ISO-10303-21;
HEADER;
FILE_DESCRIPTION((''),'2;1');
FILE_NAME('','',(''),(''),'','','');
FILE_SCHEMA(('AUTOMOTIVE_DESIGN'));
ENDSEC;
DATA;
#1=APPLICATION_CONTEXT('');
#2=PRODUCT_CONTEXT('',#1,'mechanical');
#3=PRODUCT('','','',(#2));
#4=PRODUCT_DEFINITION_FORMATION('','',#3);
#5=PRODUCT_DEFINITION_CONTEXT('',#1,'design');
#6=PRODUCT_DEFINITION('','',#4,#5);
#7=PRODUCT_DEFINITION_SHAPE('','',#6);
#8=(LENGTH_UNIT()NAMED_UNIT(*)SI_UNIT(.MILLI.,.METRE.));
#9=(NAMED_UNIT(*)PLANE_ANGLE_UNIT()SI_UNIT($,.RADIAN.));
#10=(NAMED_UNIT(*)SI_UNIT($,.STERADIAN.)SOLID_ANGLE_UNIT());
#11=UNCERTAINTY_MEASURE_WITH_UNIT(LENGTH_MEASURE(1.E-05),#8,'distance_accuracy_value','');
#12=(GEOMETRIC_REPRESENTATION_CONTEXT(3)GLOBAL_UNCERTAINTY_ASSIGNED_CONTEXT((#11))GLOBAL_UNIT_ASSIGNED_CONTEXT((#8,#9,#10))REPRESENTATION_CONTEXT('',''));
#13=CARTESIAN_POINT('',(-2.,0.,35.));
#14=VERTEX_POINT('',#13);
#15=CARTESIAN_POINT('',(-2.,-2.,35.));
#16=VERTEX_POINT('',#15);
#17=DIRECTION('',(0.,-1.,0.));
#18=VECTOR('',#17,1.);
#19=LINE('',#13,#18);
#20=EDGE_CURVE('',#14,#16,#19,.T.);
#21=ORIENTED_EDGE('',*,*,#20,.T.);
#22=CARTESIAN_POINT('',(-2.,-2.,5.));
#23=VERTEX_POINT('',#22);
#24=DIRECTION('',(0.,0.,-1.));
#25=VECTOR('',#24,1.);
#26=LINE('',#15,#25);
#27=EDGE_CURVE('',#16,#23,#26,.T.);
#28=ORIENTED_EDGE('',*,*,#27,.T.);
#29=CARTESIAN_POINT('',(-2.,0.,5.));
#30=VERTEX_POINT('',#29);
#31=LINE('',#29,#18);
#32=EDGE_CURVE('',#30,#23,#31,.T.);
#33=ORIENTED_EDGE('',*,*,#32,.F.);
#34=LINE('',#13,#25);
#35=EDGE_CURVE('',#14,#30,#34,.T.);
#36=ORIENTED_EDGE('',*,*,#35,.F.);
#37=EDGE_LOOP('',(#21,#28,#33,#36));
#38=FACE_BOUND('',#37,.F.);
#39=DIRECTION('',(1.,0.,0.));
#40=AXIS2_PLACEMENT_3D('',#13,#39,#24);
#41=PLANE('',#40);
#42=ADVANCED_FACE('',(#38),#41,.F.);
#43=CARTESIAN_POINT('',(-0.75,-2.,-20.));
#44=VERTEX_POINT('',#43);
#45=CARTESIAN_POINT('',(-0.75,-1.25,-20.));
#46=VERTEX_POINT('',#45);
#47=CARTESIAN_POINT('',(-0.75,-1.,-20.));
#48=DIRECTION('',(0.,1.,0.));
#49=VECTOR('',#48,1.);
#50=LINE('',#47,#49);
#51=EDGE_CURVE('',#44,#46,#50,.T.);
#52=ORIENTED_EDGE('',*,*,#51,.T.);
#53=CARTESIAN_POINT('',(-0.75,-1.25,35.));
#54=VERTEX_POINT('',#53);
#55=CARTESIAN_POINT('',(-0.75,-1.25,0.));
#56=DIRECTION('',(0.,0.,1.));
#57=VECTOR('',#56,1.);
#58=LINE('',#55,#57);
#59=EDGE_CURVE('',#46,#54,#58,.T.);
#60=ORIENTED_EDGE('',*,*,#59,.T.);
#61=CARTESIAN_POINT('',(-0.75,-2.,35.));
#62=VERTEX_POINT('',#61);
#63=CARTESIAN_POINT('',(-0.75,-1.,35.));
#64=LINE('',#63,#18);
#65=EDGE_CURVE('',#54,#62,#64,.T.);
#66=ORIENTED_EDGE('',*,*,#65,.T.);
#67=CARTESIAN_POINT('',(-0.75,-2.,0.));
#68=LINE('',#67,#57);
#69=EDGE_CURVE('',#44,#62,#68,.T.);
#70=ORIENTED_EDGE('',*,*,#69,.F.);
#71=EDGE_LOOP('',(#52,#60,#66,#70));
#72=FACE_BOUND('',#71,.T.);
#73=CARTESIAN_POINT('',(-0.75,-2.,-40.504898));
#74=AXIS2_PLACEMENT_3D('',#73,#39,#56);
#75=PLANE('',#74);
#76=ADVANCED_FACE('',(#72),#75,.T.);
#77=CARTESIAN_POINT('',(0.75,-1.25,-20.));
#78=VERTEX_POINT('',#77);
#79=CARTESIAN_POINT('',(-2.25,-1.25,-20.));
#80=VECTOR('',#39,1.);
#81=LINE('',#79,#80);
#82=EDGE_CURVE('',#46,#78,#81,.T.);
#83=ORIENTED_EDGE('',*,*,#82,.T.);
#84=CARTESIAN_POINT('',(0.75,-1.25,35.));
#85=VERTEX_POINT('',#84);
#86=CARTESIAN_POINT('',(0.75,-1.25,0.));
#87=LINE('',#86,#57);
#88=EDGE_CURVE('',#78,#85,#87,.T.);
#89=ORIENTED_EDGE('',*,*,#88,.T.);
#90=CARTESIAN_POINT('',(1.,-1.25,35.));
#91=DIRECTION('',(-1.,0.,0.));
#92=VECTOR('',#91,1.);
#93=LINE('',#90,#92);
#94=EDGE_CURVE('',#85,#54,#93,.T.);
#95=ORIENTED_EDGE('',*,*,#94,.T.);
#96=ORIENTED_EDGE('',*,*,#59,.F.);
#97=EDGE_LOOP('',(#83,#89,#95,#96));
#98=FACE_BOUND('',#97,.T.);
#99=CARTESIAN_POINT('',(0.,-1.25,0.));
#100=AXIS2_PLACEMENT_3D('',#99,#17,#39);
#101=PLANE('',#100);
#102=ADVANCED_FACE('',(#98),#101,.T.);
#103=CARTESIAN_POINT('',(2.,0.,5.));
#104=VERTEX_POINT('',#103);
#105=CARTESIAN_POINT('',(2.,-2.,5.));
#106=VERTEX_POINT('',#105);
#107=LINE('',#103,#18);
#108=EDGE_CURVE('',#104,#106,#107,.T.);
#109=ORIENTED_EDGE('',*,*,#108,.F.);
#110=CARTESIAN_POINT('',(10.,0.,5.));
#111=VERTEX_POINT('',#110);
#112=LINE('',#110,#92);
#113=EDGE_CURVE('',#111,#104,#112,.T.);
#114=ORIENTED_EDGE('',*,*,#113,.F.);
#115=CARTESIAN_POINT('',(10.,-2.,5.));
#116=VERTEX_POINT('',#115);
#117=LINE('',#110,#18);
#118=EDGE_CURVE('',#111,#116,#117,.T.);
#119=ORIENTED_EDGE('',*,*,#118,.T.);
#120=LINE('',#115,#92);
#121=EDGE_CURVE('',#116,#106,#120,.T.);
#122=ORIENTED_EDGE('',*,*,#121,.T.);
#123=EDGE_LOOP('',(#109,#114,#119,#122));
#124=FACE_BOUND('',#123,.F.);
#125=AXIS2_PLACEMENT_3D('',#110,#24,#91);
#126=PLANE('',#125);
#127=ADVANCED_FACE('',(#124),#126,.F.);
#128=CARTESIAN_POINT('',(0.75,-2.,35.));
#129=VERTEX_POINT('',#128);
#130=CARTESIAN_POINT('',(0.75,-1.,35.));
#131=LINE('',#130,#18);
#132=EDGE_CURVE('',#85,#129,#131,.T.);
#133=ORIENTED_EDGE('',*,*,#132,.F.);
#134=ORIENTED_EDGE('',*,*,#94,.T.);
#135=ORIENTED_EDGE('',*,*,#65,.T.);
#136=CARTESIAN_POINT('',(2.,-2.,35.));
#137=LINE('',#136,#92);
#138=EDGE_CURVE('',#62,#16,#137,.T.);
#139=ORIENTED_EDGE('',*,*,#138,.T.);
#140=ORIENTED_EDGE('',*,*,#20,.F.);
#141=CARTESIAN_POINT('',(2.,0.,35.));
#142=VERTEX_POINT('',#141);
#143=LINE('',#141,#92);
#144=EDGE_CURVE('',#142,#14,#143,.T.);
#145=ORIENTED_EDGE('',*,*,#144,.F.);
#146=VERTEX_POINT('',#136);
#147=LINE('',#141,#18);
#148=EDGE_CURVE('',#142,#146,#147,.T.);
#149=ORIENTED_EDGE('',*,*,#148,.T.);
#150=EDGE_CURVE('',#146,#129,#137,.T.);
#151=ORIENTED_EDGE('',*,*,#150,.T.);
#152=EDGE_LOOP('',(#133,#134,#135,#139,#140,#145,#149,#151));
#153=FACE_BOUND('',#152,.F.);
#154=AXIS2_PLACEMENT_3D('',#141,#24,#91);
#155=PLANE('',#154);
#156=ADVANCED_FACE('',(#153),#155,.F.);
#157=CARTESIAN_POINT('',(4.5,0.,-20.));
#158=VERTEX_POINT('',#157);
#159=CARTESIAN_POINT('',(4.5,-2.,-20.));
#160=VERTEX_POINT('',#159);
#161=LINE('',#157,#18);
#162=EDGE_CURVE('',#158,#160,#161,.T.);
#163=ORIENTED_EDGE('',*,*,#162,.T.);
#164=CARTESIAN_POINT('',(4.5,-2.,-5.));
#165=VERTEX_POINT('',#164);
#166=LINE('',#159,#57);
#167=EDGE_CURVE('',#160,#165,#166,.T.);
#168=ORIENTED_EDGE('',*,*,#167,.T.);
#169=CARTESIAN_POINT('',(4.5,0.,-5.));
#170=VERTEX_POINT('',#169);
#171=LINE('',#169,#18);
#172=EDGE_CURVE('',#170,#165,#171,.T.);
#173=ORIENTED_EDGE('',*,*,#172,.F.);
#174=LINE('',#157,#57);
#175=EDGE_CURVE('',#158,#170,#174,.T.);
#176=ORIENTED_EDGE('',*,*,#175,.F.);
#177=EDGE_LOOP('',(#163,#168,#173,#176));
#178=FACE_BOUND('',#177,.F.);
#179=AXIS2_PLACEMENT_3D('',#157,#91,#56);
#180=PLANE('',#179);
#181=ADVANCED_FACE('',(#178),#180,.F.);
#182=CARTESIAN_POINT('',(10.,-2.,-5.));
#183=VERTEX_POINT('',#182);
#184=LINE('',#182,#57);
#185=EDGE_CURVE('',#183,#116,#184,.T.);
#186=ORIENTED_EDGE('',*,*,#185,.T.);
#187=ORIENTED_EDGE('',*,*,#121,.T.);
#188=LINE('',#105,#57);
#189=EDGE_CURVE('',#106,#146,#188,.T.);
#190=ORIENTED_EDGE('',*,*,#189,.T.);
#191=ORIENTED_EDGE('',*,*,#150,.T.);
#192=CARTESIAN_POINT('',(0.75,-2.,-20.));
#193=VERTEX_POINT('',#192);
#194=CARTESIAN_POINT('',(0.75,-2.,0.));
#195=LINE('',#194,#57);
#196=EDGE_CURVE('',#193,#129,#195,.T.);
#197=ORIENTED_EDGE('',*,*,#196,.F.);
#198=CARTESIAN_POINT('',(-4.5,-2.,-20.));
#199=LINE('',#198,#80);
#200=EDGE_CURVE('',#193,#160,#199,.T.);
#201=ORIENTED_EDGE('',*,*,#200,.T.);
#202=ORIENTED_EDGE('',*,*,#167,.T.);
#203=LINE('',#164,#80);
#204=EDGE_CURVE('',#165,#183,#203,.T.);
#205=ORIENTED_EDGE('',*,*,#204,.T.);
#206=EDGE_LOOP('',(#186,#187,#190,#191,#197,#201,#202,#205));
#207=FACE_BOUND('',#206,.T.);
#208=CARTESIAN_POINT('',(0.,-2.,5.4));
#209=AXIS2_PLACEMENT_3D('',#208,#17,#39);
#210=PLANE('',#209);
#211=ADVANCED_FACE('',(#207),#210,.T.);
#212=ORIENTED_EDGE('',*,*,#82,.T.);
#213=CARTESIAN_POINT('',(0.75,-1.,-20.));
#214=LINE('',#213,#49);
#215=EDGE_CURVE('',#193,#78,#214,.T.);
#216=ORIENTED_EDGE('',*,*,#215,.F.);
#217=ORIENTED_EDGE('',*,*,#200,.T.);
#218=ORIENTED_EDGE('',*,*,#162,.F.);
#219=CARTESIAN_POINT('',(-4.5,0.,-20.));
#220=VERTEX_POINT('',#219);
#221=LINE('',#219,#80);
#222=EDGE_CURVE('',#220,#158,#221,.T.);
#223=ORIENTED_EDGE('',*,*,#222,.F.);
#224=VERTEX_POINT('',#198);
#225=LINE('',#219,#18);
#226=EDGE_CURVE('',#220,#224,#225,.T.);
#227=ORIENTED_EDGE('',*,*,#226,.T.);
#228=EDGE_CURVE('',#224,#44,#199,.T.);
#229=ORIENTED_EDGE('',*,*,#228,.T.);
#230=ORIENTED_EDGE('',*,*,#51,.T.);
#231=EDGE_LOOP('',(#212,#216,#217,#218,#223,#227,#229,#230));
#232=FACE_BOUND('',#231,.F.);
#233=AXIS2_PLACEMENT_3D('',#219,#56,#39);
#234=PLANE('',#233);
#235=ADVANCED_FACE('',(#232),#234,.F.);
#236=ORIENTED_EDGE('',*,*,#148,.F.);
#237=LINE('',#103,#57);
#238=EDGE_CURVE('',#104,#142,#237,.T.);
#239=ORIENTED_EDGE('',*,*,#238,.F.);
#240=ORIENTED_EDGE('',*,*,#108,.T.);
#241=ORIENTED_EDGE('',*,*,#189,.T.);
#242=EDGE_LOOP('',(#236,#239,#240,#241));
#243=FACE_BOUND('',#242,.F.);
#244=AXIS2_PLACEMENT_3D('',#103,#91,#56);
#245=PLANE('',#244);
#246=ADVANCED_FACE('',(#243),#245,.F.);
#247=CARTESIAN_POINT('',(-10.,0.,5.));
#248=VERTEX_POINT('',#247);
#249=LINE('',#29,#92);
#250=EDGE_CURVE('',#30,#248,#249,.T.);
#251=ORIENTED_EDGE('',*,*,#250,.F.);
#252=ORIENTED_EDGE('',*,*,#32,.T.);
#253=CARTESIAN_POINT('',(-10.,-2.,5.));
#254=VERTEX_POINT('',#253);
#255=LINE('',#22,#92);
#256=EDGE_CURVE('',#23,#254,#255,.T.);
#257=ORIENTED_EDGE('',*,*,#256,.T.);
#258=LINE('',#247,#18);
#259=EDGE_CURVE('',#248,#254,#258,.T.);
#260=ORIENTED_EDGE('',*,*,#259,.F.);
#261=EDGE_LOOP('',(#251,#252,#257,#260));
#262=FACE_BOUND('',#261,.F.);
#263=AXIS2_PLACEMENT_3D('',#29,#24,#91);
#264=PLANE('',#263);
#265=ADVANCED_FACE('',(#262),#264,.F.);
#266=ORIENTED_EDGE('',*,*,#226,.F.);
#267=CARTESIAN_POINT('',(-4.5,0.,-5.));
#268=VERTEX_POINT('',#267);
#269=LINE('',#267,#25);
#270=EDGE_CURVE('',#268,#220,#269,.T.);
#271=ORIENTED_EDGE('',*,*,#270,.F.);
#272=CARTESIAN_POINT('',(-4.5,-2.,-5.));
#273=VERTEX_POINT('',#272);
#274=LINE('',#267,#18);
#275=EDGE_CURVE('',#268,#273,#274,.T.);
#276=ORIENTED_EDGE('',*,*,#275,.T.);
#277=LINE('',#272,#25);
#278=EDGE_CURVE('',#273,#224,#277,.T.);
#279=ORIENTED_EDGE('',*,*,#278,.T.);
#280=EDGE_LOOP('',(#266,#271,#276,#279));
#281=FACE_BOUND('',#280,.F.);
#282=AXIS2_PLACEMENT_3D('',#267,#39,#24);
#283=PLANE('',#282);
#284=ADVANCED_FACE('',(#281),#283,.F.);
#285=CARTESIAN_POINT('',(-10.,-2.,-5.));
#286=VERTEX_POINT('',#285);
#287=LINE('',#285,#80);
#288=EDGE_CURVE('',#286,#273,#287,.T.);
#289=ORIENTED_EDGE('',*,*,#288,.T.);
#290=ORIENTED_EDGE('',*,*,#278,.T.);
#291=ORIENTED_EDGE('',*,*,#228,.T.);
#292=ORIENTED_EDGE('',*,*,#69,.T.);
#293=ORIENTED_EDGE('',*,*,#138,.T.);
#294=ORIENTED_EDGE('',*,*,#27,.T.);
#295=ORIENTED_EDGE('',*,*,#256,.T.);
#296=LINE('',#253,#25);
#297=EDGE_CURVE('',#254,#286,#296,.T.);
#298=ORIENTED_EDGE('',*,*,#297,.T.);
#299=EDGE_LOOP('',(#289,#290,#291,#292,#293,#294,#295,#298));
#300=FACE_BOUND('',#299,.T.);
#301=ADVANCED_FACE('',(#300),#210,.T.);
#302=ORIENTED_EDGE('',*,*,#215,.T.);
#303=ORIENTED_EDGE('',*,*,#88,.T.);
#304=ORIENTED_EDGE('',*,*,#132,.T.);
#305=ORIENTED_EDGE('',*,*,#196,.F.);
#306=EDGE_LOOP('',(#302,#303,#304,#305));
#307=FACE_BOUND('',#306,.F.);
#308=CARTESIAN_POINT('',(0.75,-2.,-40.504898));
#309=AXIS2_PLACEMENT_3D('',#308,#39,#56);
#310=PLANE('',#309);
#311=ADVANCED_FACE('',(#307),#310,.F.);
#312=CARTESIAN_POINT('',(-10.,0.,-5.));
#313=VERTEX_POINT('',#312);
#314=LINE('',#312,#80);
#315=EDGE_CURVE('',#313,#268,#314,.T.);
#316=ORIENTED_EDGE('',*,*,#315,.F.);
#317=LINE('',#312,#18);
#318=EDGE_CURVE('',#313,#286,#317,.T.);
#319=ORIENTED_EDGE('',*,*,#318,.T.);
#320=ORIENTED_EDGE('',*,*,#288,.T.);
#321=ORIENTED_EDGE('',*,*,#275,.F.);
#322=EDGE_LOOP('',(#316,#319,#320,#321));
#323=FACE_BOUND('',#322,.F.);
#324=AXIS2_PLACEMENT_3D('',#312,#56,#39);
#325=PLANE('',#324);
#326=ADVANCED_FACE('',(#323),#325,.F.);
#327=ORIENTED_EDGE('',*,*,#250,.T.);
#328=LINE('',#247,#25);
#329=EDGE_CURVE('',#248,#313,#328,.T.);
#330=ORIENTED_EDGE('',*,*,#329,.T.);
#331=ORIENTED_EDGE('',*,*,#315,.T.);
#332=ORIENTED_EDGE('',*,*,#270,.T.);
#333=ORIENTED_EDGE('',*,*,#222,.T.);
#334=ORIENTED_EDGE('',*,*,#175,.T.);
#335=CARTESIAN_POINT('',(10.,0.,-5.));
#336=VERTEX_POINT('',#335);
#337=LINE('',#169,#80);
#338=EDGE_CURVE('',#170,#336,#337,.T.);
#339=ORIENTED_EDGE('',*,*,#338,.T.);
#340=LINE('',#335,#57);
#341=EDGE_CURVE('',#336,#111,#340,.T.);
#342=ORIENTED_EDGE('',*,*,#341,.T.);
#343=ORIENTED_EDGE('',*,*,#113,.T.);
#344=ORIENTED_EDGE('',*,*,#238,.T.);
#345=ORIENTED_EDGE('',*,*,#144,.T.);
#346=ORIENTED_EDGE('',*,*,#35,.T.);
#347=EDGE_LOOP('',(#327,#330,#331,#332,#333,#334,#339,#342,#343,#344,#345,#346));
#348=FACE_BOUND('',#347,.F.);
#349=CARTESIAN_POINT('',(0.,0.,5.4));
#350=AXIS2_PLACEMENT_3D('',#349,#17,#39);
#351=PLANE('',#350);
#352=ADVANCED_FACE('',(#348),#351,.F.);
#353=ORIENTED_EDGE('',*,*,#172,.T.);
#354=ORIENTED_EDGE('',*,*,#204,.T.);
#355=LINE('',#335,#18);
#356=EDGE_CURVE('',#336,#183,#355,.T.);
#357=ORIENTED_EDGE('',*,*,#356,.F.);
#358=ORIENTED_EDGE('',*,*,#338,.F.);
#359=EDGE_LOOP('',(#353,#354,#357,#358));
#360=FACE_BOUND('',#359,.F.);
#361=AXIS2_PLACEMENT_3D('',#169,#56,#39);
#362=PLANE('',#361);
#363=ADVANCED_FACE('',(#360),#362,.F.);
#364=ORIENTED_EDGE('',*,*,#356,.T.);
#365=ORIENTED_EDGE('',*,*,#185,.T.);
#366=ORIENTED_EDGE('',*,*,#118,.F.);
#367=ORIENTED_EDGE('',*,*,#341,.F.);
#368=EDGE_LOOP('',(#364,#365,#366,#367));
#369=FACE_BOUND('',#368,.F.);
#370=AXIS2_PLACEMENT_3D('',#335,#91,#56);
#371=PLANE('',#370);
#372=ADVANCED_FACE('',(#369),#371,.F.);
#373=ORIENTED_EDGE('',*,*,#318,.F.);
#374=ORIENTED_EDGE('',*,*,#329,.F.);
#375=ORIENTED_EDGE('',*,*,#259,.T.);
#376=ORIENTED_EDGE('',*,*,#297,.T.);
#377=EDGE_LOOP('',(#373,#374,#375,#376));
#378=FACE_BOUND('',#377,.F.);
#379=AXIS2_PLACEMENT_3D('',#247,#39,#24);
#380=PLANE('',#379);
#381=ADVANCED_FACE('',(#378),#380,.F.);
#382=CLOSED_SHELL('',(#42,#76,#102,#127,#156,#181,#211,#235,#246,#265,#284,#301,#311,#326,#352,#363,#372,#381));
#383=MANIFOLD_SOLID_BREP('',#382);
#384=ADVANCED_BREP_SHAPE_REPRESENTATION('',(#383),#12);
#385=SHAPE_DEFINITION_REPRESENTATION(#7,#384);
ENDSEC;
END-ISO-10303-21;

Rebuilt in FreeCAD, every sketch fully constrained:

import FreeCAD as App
import Part
import Sketcher
from FreeCAD import Vector
Q = App.Units.Quantity

doc = App.newDocument("Part")
body = doc.addObject("PartDesign::Body", "Body")

sketch1 = body.newObject("Sketcher::SketchObject", "Sketch")
sketch1.AttachmentSupport = (doc.getObject("XZ_Plane"), [""])
sketch1.MapMode = "FlatFace"
sketch1.addGeometry([
    Part.LineSegment(Vector(10, -5, 0), Vector(10, 5, 0)),
    Part.LineSegment(Vector(10, 5, 0), Vector(2, 5, 0)),
    Part.LineSegment(Vector(2, 5, 0), Vector(2, 35, 0)),
    Part.LineSegment(Vector(2, 35, 0), Vector(-2, 35, 0)),
    Part.LineSegment(Vector(-2, 35, 0), Vector(-2, 5, 0)),
    Part.LineSegment(Vector(-2, 5, 0), Vector(-10, 5, 0)),
    Part.LineSegment(Vector(-10, 5, 0), Vector(-10, -5, 0)),
    Part.LineSegment(Vector(-10, -5, 0), Vector(-4.5, -5, 0)),
    Part.LineSegment(Vector(-4.5, -5, 0), Vector(-4.5, -20, 0)),
    Part.LineSegment(Vector(-4.5, -20, 0), Vector(4.5, -20, 0)),
    Part.LineSegment(Vector(4.5, -20, 0), Vector(4.5, -5, 0)),
    Part.LineSegment(Vector(4.5, -5, 0), Vector(10, -5, 0)),
], False)
sketch1.addConstraint([
    Sketcher.Constraint("Coincident", 0, 2, 1, 1),
    Sketcher.Constraint("Coincident", 1, 2, 2, 1),
    Sketcher.Constraint("Coincident", 2, 2, 3, 1),
    Sketcher.Constraint("Coincident", 3, 2, 4, 1),
    Sketcher.Constraint("Coincident", 4, 2, 5, 1),
    Sketcher.Constraint("Coincident", 5, 2, 6, 1),
    Sketcher.Constraint("Coincident", 6, 2, 7, 1),
    Sketcher.Constraint("Coincident", 7, 2, 8, 1),
    Sketcher.Constraint("Coincident", 8, 2, 9, 1),
    Sketcher.Constraint("Coincident", 9, 2, 10, 1),
    Sketcher.Constraint("Coincident", 10, 2, 11, 1),
    Sketcher.Constraint("Coincident", 11, 2, 0, 1),
    Sketcher.Constraint("Vertical", 0),
    Sketcher.Constraint("Horizontal", 1),
    Sketcher.Constraint("Vertical", 2),
    Sketcher.Constraint("Horizontal", 3),
    Sketcher.Constraint("Vertical", 4),
    Sketcher.Constraint("Horizontal", 5),
    Sketcher.Constraint("Vertical", 6),
    Sketcher.Constraint("Horizontal", 7),
    Sketcher.Constraint("Vertical", 8),
    Sketcher.Constraint("Horizontal", 9),
    Sketcher.Constraint("Vertical", 10),
    Sketcher.Constraint("Horizontal", 11),
    Sketcher.Constraint("Symmetric", 0, 2, 6, 2, -1, 1),
    Sketcher.Constraint("Symmetric", 1, 2, 4, 2, -2),
    Sketcher.Constraint("Symmetric", 7, 2, 10, 2, -2),
    Sketcher.Constraint("DistanceX", 1, 2, 1, 1, Q("8 mm")),
    Sketcher.Constraint("DistanceX", 3, 2, 3, 1, Q("4 mm")),
    Sketcher.Constraint("DistanceX", 9, 1, 9, 2, Q("9 mm")),
    Sketcher.Constraint("DistanceY", 0, 1, 0, 2, Q("10 mm")),
    Sketcher.Constraint("DistanceY", 2, 1, 2, 2, Q("30 mm")),
    Sketcher.Constraint("DistanceY", 8, 2, 8, 1, Q("15 mm")),
])
pad1 = body.newObject("PartDesign::Pad", "Pad")
pad1.Profile = sketch1
pad1.Length = 2

sketch2 = body.newObject("Sketcher::SketchObject", "Sketch001")
sketch2.AttachmentSupport = (doc.getObject("XZ_Plane"), [""])
sketch2.MapMode = "FlatFace"
sketch2.AttachmentOffset = App.Placement(Vector(0, 0, 2), App.Rotation())
sketch2.addGeometry([
    Part.LineSegment(Vector(-0.8, 40.5, 0), Vector(-0.8, -40.5, 0)),
    Part.LineSegment(Vector(-0.8, -40.5, 0), Vector(0.8, -40.5, 0)),
    Part.LineSegment(Vector(0.8, -40.5, 0), Vector(0.8, 40.5, 0)),
    Part.LineSegment(Vector(0.8, 40.5, 0), Vector(-0.8, 40.5, 0)),
], False)
sketch2.addConstraint([
    Sketcher.Constraint("Coincident", 0, 2, 1, 1),
    Sketcher.Constraint("Coincident", 1, 2, 2, 1),
    Sketcher.Constraint("Coincident", 2, 2, 3, 1),
    Sketcher.Constraint("Coincident", 3, 2, 0, 1),
    Sketcher.Constraint("Vertical", 0),
    Sketcher.Constraint("Horizontal", 1),
    Sketcher.Constraint("Vertical", 2),
    Sketcher.Constraint("Horizontal", 3),
    Sketcher.Constraint("Symmetric", 0, 2, 2, 2, -1, 1),
    Sketcher.Constraint("DistanceX", 1, 1, 1, 2, Q("1.5 mm")),
    Sketcher.Constraint("DistanceY", 0, 2, 0, 1, Q("81.009796 mm")),
])
pocket1 = body.newObject("PartDesign::Pocket", "Pocket")
pocket1.Profile = sketch2
pocket1.Length = 0.75

doc.recompute()
